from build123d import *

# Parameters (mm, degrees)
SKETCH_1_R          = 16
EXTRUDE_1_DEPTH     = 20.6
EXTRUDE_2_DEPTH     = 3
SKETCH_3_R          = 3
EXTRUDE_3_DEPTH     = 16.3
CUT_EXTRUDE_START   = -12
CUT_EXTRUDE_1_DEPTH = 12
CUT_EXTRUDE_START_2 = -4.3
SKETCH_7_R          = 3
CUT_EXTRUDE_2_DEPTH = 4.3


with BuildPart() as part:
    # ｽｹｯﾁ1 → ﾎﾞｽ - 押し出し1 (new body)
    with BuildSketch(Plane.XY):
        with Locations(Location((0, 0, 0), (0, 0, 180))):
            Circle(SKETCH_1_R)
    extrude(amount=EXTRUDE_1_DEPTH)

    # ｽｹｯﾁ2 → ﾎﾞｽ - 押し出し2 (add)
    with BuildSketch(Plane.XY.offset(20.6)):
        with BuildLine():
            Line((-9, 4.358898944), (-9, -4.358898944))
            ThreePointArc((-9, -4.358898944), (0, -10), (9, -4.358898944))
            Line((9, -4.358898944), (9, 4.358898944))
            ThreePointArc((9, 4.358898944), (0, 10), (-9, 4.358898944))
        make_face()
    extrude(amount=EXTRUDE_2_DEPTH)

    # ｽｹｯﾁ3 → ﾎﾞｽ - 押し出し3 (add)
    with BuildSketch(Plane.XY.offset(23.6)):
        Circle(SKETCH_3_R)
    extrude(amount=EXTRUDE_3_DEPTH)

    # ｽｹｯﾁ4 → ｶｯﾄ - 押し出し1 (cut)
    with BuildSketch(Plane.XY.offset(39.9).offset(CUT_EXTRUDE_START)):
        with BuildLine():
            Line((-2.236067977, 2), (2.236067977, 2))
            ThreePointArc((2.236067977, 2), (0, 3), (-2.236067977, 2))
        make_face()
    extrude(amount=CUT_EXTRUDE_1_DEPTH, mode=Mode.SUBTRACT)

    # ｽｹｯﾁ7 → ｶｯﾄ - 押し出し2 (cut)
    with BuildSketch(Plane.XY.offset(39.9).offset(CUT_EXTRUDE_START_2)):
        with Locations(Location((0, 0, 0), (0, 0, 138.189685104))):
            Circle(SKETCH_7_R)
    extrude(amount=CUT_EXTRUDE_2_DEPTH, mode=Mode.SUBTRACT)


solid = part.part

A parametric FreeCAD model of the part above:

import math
import FreeCAD as App
import Part
import Sketcher

V = App.Vector

doc = App.newDocument("Part")
body = doc.addObject("PartDesign::Body", "Body")

sketch1 = body.newObject("Sketcher::SketchObject", "Sketch")
sketch1.AttachmentSupport = (doc.getObject("XY_Plane"), [""])
sketch1.MapMode = "FlatFace"
sketch1.addGeometry(Part.Circle(V(0, 0, 0), V(0, 0, 1), 16), False)
sketch1.addConstraint([
    Sketcher.Constraint("Coincident", 0, 3, -1, 1),
    Sketcher.Constraint("Diameter", 0, 32.0),
])
pad1 = body.newObject("PartDesign::Pad", "Pad")
pad1.Profile = sketch1
pad1.Length = 20.6

sketch2 = body.newObject("Sketcher::SketchObject", "Sketch001")
sketch2.AttachmentSupport = (doc.getObject("XY_Plane"), [""])
sketch2.MapMode = "FlatFace"
sketch2.AttachmentOffset = App.Placement(V(0, 0, 20.6), App.Rotation())
sketch2.addGeometry([
    Part.LineSegment(V(-9, 4, 0), V(-9, -4, 0)),
    Part.ArcOfCircle(Part.Circle(V(0, 0, 0), V(0, 0, 1), 10), math.radians(-154), math.radians(-26)),
    Part.LineSegment(V(9, -4, 0), V(9, 4, 0)),
    Part.ArcOfCircle(Part.Circle(V(0, 0, 0), V(0, 0, 1), 10), math.radians(26), math.radians(154)),
], False)
sketch2.addConstraint([
    Sketcher.Constraint("Coincident", 0, 2, 1, 1),
    Sketcher.Constraint("Coincident", 1, 2, 2, 1),
    Sketcher.Constraint("Coincident", 2, 2, 3, 1),
    Sketcher.Constraint("Coincident", 3, 2, 0, 1),
    Sketcher.Constraint("Vertical", 0),
    Sketcher.Constraint("Vertical", 2),
    Sketcher.Constraint("Coincident", 1, 3, -1, 1),
    Sketcher.Constraint("Coincident", 3, 3, -1, 1),
    Sketcher.Constraint("Equal", 1, 3),
    Sketcher.Constraint("Horizontal", 0, 2, 1, 2),
    Sketcher.Constraint("Radius", 1, 10.0),
    Sketcher.Constraint("DistanceX", 0, 2, -1, 1, 9.0),
])
pad2 = body.newObject("PartDesign::Pad", "Pad001")
pad2.Profile = sketch2
pad2.Length = 3

sketch3 = body.newObject("Sketcher::SketchObject", "Sketch002")
sketch3.AttachmentSupport = (doc.getObject("XY_Plane"), [""])
sketch3.MapMode = "FlatFace"
sketch3.AttachmentOffset = App.Placement(V(0, 0, 23.6), App.Rotation())
sketch3.addGeometry(Part.Circle(V(0, 0, 0), V(0, 0, 1), 3), False)
sketch3.addConstraint([
    Sketcher.Constraint("Coincident", 0, 3, -1, 1),
    Sketcher.Constraint("Diameter", 0, 6.0),
])
pad3 = body.newObject("PartDesign::Pad", "Pad002")
pad3.Profile = sketch3
pad3.Length = 16.3

sketch4 = body.newObject("Sketcher::SketchObject", "Sketch003")
sketch4.AttachmentSupport = (doc.getObject("XY_Plane"), [""])
sketch4.MapMode = "FlatFace"
sketch4.AttachmentOffset = App.Placement(V(0, 0, 27.9), App.Rotation())
sketch4.addGeometry([
    Part.LineSegment(V(-2.2, 2, 0), V(2.2, 2, 0)),
    Part.ArcOfCircle(Part.Circle(V(0, 0, 0), V(0, 0, 1), 3), math.radians(42), math.radians(138)),
], False)
sketch4.addConstraint([
    Sketcher.Constraint("Coincident", 0, 1, 1, 2),
    Sketcher.Constraint("Coincident", 1, 1, 0, 2),
    Sketcher.Constraint("Horizontal", 0),
    Sketcher.Constraint("Coincident", 1, 3, -1, 1),
    Sketcher.Constraint("Radius", 1, 3.0),
    Sketcher.Constraint("DistanceY", -1, 1, 0, 1, 2.0),
])
pocket1 = body.newObject("PartDesign::Pocket", "Pocket")
pocket1.Profile = sketch4
pocket1.Length = 12
pocket1.Reversed = True

sketch5 = body.newObject("Sketcher::SketchObject", "Sketch004")
sketch5.AttachmentSupport = (doc.getObject("XY_Plane"), [""])
sketch5.MapMode = "FlatFace"
sketch5.AttachmentOffset = App.Placement(V(0, 0, 35.6), App.Rotation())
sketch5.addGeometry(Part.Circle(V(0, 0, 0), V(0, 0, 1), 3), False)
sketch5.addConstraint([
    Sketcher.Constraint("Coincident", 0, 3, -1, 1),
    Sketcher.Constraint("Diameter", 0, 6.0),
])
pocket2 = body.newObject("PartDesign::Pocket", "Pocket001")
pocket2.Profile = sketch5
pocket2.Length = 4.3
pocket2.Reversed = True

doc.recompute()
